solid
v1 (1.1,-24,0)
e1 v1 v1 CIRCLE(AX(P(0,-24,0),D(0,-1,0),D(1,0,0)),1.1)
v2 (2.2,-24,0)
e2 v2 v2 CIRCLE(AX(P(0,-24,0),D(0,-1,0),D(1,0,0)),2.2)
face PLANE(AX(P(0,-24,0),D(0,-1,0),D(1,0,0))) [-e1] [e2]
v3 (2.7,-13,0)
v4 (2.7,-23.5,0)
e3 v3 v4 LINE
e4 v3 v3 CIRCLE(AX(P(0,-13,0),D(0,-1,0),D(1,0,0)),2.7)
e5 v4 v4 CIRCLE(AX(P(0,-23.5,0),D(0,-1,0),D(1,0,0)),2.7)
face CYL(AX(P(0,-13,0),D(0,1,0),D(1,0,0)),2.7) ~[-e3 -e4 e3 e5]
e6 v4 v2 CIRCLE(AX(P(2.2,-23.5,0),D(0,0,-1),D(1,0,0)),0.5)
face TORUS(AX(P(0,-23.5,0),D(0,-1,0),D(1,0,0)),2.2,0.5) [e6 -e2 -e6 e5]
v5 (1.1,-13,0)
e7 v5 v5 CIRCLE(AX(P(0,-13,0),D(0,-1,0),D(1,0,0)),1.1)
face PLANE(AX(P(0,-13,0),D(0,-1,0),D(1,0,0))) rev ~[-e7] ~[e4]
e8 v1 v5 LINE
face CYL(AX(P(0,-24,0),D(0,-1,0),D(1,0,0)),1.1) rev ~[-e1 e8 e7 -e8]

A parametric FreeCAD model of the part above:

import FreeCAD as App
import Part
import Sketcher

V = App.Vector
Q = App.Units.Quantity


def edges_at(feature, points):
    """Names of the edges that pass closest to the given points."""
    edges = feature.Shape.Edges
    near = lambda p: min(range(len(edges)), key=lambda i: edges[i].distToShape(Part.Vertex(*p))[0])
    return sorted({f"Edge{near(p) + 1}" for p in points})

doc = App.newDocument("Part")
body = doc.addObject("PartDesign::Body", "Body")

# Sketch on XZ plane
sketch1 = doc.addObject("Sketcher::SketchObject", "Sketch")
body.addObject(sketch1)
sketch1.AttachmentSupport = (doc.XZ_Plane, [""])
sketch1.MapMode = "FlatFace"
sketch1.AttachmentOffset = App.Placement(V(0, 0, 13), App.Rotation())
sketch1.addGeometry(Part.Circle(V(0, 0, 0), V(0, 0, 1), 2.7), False)
sketch1.addConstraint([
    Sketcher.Constraint("Coincident", 0, 3, -1, 1),
    Sketcher.Constraint("Diameter", 0, Q("5.4 mm")),
])
pad1 = doc.addObject("PartDesign::Pad", "Pad")
body.addObject(pad1)
pad1.Profile = sketch1
pad1.Length = 11
doc.recompute()

fillet = doc.addObject("PartDesign::Fillet", "Fillet")
body.addObject(fillet)
fillet.Base = (pad1, edges_at(pad1, [(-2.7, -24, 0)]))
fillet.Radius = 0.5

# Sketch on XZ plane
sketch2 = doc.addObject("Sketcher::SketchObject", "Sketch001")
body.addObject(sketch2)
sketch2.AttachmentSupport = (doc.XZ_Plane, [""])
sketch2.MapMode = "FlatFace"
sketch2.AttachmentOffset = App.Placement(V(0, 0, 24), App.Rotation())
sketch2.addGeometry(Part.Circle(V(0, 0, 0), V(0, 0, 1), 1.1), False)
sketch2.addConstraint([
    Sketcher.Constraint("Coincident", 0, 3, -1, 1),
    Sketcher.Constraint("Diameter", 0, Q("2.2 mm")),
])
pocket1 = doc.addObject("PartDesign::Pocket", "Pocket")
body.addObject(pocket1)
pocket1.Profile = sketch2
pocket1.Length = 11

doc.recompute()
